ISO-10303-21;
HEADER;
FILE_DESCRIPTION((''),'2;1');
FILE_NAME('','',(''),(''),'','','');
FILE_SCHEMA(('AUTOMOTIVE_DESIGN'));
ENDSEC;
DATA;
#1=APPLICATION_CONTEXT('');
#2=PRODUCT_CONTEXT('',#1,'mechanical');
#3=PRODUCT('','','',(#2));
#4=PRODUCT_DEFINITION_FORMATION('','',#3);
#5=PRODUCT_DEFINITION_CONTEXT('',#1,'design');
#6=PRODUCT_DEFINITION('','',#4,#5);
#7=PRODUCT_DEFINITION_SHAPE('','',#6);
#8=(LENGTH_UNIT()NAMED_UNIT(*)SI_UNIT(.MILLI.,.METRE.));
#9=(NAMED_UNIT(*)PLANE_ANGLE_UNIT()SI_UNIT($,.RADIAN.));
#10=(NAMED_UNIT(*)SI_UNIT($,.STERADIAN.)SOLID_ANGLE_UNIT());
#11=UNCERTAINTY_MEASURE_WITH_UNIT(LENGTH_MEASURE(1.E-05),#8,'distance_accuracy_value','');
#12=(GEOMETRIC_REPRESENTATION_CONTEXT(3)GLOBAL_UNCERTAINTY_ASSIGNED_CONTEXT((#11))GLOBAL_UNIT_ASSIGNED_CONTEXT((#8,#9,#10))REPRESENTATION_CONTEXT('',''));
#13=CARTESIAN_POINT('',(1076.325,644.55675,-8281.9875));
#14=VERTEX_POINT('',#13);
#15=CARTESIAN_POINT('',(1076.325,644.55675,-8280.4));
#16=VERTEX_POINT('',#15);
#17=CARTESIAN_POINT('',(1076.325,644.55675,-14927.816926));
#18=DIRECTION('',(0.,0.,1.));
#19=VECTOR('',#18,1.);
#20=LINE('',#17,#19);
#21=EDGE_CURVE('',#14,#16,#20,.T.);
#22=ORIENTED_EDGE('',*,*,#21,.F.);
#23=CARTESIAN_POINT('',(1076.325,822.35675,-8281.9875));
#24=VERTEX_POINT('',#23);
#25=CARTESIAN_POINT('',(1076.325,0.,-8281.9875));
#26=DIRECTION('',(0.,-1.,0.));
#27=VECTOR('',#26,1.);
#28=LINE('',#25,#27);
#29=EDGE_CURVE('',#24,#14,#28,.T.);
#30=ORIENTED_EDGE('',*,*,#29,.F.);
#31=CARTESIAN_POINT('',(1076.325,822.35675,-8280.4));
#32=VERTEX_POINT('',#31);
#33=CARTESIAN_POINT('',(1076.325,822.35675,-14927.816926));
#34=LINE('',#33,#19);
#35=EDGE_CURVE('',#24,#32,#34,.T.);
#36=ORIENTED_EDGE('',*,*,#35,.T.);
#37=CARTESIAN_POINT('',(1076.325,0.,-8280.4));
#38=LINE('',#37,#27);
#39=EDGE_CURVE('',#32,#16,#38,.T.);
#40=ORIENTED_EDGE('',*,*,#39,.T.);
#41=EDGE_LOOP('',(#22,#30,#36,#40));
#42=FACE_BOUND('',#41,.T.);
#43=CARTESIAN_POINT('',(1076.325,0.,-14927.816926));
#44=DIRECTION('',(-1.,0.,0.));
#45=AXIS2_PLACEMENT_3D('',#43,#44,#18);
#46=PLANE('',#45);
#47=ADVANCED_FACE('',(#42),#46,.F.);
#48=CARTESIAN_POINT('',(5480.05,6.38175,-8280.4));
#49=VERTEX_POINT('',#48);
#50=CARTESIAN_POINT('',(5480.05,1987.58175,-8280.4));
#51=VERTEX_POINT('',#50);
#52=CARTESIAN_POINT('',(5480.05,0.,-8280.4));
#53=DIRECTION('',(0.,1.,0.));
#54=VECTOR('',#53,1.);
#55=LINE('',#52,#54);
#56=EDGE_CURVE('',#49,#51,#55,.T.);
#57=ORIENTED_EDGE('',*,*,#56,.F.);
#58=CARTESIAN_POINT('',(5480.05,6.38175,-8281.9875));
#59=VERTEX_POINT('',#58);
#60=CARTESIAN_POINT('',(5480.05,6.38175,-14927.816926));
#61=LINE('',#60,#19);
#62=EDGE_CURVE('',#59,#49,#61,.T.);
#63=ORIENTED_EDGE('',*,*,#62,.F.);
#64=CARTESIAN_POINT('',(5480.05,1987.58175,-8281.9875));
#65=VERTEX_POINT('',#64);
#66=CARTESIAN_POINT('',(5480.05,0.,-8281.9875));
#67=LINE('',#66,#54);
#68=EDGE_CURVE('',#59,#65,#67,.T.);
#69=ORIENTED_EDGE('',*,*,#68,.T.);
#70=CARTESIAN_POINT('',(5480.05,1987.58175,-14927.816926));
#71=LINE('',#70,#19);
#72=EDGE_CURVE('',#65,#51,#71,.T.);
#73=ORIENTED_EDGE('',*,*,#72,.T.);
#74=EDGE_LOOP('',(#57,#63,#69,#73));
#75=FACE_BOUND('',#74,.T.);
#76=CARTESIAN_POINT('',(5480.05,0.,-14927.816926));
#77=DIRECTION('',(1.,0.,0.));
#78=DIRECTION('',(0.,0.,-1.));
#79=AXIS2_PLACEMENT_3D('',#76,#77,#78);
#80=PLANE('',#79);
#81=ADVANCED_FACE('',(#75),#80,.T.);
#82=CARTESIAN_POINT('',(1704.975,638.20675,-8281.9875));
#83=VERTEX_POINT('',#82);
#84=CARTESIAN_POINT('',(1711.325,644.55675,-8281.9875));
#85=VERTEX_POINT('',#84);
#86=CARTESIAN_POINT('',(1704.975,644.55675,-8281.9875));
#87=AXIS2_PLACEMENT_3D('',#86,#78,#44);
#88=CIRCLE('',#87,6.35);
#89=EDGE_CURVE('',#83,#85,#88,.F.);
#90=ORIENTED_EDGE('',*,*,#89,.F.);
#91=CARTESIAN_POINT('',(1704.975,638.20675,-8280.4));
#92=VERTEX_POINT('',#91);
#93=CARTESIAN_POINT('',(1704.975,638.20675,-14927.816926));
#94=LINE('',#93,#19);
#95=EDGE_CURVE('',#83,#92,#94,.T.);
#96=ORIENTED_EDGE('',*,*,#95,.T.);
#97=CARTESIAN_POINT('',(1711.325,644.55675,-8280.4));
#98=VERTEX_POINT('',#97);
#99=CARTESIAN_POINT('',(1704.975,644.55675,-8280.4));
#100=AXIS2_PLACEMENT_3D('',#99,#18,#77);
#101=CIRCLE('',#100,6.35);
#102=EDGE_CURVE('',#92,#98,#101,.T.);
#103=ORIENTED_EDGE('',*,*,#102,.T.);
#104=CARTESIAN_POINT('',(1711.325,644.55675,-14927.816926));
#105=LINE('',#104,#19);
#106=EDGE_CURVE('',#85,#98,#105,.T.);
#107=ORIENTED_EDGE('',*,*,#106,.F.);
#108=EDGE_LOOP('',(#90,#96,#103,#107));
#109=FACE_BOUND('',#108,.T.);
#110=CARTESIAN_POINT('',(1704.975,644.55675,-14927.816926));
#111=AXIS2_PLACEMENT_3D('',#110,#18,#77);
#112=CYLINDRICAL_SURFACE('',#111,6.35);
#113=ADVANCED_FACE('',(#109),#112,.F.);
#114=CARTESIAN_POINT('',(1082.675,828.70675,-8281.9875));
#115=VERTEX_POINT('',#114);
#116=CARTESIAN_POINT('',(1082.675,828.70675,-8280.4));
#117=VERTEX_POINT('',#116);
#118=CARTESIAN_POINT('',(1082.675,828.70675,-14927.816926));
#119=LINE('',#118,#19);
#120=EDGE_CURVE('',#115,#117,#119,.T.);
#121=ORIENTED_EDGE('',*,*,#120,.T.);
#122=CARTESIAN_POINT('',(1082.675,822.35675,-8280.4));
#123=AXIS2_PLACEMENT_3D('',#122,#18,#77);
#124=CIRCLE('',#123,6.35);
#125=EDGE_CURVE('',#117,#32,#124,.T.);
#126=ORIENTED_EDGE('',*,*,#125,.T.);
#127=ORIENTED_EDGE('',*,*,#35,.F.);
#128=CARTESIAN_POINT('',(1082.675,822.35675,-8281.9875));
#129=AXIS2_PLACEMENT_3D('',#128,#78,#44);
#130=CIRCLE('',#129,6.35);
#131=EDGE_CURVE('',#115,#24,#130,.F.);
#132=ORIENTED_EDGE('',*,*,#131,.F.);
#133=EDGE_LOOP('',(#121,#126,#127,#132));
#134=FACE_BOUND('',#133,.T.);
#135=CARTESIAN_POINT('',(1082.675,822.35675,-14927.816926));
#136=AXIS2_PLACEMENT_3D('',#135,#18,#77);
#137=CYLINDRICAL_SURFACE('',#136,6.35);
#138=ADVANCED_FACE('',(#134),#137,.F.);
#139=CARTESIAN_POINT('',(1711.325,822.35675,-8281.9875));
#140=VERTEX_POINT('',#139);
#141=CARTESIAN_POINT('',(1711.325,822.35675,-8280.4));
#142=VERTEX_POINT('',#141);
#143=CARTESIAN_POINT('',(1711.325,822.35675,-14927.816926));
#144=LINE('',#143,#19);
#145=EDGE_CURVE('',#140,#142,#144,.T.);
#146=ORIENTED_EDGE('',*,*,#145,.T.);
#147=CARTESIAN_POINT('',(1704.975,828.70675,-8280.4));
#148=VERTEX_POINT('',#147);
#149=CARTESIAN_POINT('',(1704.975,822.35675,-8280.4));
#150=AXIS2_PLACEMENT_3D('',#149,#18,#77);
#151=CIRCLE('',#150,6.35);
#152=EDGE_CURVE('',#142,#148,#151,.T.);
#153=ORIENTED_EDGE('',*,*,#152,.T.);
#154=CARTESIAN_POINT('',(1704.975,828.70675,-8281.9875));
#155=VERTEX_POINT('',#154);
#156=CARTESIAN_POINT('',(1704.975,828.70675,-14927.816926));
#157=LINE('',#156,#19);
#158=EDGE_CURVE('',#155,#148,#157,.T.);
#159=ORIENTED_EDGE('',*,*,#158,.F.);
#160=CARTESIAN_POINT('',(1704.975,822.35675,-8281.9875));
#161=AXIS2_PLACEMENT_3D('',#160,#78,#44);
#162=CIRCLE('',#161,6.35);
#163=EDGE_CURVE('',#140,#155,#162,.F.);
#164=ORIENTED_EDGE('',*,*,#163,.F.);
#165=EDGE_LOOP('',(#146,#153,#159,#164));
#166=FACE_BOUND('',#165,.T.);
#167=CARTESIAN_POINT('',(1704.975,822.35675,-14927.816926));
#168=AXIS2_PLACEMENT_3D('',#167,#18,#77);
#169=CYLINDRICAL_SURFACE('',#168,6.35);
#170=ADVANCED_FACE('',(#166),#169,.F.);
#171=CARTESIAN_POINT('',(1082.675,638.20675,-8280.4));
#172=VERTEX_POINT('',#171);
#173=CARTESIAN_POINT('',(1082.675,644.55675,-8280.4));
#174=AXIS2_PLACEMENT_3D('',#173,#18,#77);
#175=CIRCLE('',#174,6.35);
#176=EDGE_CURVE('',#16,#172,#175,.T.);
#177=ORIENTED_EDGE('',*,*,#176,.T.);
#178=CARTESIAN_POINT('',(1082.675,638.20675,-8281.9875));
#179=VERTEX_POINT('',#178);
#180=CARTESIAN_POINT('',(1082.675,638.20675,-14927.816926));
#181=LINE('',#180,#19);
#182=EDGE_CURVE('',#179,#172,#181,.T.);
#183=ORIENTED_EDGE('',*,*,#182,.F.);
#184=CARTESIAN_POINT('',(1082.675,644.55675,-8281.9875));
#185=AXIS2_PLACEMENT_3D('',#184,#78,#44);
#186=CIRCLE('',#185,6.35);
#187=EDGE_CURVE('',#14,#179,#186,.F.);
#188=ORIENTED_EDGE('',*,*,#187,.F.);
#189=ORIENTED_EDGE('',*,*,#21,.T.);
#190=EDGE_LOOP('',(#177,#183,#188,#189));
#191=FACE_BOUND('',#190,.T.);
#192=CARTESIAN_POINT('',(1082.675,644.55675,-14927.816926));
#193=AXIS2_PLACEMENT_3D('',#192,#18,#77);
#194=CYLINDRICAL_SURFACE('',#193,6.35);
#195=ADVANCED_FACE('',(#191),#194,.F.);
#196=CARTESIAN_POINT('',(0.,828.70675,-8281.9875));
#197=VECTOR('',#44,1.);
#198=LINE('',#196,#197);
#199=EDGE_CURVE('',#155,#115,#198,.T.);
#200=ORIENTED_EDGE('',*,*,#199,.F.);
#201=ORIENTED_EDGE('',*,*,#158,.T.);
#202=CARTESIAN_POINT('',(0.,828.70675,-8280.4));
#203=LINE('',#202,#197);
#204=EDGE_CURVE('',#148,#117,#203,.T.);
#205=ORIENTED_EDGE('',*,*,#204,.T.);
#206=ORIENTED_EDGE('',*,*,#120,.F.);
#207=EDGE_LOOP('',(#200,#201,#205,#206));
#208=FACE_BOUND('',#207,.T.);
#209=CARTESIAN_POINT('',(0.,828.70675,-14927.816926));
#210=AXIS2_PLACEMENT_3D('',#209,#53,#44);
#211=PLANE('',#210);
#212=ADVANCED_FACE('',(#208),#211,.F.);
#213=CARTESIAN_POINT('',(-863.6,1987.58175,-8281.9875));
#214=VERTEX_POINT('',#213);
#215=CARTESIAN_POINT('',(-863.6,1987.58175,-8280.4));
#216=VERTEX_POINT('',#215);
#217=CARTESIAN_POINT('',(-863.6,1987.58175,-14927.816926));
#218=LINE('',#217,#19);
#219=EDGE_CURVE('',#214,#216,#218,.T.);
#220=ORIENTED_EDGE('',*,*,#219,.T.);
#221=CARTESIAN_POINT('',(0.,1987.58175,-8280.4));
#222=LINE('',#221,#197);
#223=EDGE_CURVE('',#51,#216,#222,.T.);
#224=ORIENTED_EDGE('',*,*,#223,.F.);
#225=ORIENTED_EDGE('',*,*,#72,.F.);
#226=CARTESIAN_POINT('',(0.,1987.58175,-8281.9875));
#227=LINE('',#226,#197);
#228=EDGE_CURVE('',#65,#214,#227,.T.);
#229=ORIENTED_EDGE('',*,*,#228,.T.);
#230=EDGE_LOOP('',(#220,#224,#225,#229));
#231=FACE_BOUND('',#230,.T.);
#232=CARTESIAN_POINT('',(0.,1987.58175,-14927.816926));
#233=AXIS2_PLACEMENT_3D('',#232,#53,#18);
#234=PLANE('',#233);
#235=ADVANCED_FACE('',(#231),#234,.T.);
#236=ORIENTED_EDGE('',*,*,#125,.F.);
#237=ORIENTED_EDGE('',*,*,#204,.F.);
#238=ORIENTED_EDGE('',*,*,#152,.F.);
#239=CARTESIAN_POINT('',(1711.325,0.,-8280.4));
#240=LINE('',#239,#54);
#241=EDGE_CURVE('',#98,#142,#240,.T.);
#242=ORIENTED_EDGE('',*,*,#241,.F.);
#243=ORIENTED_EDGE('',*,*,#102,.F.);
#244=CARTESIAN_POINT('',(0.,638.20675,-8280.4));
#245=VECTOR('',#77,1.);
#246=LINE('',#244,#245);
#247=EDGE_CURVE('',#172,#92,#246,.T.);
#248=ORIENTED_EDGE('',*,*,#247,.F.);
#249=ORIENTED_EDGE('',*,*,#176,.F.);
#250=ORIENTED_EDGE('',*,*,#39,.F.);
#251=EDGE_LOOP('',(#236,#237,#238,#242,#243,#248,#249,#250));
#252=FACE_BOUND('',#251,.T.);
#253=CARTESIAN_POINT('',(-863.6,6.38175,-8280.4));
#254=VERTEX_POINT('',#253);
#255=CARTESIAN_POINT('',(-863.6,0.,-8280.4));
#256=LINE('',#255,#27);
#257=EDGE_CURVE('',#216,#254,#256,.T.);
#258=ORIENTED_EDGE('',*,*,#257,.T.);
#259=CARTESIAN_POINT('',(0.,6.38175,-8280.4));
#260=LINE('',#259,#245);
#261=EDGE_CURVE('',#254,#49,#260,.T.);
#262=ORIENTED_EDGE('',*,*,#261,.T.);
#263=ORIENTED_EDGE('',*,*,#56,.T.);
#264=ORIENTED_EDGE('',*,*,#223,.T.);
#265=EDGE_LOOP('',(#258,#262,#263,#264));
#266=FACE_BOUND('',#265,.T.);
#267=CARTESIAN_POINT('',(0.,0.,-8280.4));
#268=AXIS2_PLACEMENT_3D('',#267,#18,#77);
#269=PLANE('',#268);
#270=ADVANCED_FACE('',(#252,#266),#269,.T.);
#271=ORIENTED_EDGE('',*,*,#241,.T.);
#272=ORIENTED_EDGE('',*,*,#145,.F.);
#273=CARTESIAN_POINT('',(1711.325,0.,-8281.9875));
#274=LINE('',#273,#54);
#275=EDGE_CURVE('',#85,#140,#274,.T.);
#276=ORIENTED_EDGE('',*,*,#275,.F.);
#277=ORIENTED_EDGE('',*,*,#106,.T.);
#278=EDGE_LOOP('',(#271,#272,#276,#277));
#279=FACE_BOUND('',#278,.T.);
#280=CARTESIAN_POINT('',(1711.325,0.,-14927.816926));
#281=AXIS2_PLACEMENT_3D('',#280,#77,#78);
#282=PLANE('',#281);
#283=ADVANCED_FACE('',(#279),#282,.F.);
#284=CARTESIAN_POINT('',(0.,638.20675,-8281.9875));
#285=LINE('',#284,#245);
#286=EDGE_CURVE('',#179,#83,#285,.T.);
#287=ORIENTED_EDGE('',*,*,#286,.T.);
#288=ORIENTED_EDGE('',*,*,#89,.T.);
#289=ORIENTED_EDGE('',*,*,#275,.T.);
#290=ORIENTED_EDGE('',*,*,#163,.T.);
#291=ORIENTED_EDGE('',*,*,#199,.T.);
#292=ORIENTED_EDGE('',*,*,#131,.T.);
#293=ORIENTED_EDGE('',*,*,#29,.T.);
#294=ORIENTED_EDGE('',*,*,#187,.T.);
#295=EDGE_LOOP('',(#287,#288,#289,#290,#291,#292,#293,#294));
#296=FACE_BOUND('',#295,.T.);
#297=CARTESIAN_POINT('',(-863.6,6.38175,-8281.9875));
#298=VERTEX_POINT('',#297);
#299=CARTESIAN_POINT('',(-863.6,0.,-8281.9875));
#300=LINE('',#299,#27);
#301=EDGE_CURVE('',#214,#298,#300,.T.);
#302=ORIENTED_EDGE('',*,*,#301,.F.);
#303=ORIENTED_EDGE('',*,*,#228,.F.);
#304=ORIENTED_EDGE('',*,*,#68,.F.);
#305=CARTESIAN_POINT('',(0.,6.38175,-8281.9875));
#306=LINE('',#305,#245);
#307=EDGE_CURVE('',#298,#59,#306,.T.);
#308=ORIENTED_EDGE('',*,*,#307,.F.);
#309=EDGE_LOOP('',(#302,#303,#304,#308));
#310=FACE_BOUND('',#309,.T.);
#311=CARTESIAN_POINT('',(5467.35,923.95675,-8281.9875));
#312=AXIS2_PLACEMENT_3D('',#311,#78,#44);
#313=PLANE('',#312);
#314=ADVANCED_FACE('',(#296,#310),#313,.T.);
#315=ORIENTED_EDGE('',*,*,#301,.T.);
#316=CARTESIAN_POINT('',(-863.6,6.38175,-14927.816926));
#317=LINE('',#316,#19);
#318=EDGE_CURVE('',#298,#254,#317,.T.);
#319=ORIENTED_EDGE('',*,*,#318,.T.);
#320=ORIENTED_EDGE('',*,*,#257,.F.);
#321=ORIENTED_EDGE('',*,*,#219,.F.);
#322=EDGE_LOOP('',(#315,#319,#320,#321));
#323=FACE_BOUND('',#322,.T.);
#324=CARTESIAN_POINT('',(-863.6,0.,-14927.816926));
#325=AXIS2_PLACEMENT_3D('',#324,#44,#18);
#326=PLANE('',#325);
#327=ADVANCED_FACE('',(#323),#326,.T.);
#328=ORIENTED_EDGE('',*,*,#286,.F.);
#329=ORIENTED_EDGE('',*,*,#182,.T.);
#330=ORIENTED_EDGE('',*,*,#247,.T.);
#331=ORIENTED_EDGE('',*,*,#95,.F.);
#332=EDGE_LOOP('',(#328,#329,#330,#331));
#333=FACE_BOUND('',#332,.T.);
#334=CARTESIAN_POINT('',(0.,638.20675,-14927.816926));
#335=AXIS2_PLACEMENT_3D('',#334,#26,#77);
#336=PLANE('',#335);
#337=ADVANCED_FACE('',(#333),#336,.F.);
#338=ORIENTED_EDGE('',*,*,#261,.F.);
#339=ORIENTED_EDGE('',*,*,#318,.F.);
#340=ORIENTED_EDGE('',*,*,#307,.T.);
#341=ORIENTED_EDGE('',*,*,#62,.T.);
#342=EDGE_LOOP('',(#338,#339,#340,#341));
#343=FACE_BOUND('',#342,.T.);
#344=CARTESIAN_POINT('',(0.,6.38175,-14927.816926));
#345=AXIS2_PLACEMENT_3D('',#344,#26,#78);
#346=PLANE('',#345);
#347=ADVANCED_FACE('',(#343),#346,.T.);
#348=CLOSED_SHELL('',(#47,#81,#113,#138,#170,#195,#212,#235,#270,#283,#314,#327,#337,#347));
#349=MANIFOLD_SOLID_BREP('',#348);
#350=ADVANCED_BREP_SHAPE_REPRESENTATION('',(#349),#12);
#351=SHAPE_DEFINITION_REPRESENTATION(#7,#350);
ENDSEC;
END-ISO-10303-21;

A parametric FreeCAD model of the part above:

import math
import FreeCAD as App
import Part
import Sketcher
Q = App.Units.Quantity

doc = App.newDocument("Part")
body = doc.addObject("PartDesign::Body", "Body")

# Sketch on XY plane
sketch1 = body.newObject("Sketcher::SketchObject", "Sketch")
sketch1.AttachmentSupport = (doc.getObject("XY_Plane"), [""])
sketch1.MapMode = "FlatFace"
sketch1.AttachmentOffset = App.Placement(App.Vector(0, 0, -326 * 25.4), App.Rotation())
sketch1.addGeometry([
    Part.LineSegment(App.Vector(-864, 1988, 0), App.Vector(-864, 6, 0)),  # 0
    Part.LineSegment(App.Vector(-864, 6, 0), App.Vector(5480, 6, 0)),  # 1
    Part.LineSegment(App.Vector(5480, 6, 0), App.Vector(5480, 1988, 0)),  # 2
    Part.LineSegment(App.Vector(5480, 1988, 0), App.Vector(-864, 1988, 0)),  # 3
    Part.LineSegment(App.Vector(1711, 822, 0), App.Vector(1711, 645, 0)),  # 4
    Part.ArcOfCircle(Part.Circle(App.Vector(1705, 645, 0), App.Vector(0, 0, 1), 6), math.radians(-90), math.radians(0)),  # 5
    Part.LineSegment(App.Vector(1705, 638, 0), App.Vector(1083, 638, 0)),  # 6
    Part.ArcOfCircle(Part.Circle(App.Vector(1083, 645, 0), App.Vector(0, 0, 1), 6), math.radians(180), math.radians(270)),  # 7
    Part.LineSegment(App.Vector(1076, 645, 0), App.Vector(1076, 822, 0)),  # 8
    Part.ArcOfCircle(Part.Circle(App.Vector(1083, 822, 0), App.Vector(0, 0, 1), 6), math.radians(90), math.radians(180)),  # 9
    Part.LineSegment(App.Vector(1083, 829, 0), App.Vector(1705, 829, 0)),  # 10
    Part.ArcOfCircle(Part.Circle(App.Vector(1705, 822, 0), App.Vector(0, 0, 1), 6), math.radians(0), math.radians(90)),  # 11
], False)
sketch1.addConstraint([
    Sketcher.Constraint("Coincident", 0, 2, 1, 1),
    Sketcher.Constraint("Coincident", 1, 2, 2, 1),
    Sketcher.Constraint("Coincident", 2, 2, 3, 1),
    Sketcher.Constraint("Coincident", 3, 2, 0, 1),
    Sketcher.Constraint("Tangent", 4, 2, 5, 2),
    Sketcher.Constraint("Tangent", 5, 1, 6, 1),
    Sketcher.Constraint("Tangent", 6, 2, 7, 2),
    Sketcher.Constraint("Tangent", 7, 1, 8, 1),
    Sketcher.Constraint("Tangent", 8, 2, 9, 2),
    Sketcher.Constraint("Tangent", 9, 1, 10, 1),
    Sketcher.Constraint("Tangent", 10, 2, 11, 2),
    Sketcher.Constraint("Tangent", 11, 1, 4, 1),
    Sketcher.Constraint("Vertical", 0),
    Sketcher.Constraint("Horizontal", 1),
    Sketcher.Constraint("Vertical", 2),
    Sketcher.Constraint("Horizontal", 3),
    Sketcher.Constraint("Vertical", 4),
    Sketcher.Constraint("Horizontal", 6),
    Sketcher.Constraint("Vertical", 8),
    Sketcher.Constraint("Horizontal", 10),
    Sketcher.Constraint("Equal", 5, 7),
    Sketcher.Constraint("Equal", 7, 9),
    Sketcher.Constraint("Equal", 9, 11),
    Sketcher.Constraint("DistanceY", 0, 2, 0, 1, Q("78 in")),
    Sketcher.Constraint("DistanceY", 4, 2, 4, 1, Q("7 in")),
    Sketcher.Constraint("Radius", 5, Q("0.25 in")),
    Sketcher.Constraint("DistanceX", 6, 2, 6, 1, Q("24.5 in")),
    Sketcher.Constraint("DistanceX", 0, 2, -1, 1, Q("34 in")),
    Sketcher.Constraint("DistanceX", 1, 1, 1, 2, Q("249.75 in")),
    Sketcher.Constraint("DistanceX", -1, 1, 5, 3, Q("67.125 in")),
    Sketcher.Constraint("DistanceY", 0, 2, 7, 3, Q("25.125 in")),
    Sketcher.Constraint("DistanceY", -1, 1, 5, 3, 644.55675),
])
pad1 = body.newObject("PartDesign::Pad", "Pad")
pad1.Profile = sketch1
pad1.Length = Q("0.0625 in")
pad1.Reversed = True

doc.recompute()
